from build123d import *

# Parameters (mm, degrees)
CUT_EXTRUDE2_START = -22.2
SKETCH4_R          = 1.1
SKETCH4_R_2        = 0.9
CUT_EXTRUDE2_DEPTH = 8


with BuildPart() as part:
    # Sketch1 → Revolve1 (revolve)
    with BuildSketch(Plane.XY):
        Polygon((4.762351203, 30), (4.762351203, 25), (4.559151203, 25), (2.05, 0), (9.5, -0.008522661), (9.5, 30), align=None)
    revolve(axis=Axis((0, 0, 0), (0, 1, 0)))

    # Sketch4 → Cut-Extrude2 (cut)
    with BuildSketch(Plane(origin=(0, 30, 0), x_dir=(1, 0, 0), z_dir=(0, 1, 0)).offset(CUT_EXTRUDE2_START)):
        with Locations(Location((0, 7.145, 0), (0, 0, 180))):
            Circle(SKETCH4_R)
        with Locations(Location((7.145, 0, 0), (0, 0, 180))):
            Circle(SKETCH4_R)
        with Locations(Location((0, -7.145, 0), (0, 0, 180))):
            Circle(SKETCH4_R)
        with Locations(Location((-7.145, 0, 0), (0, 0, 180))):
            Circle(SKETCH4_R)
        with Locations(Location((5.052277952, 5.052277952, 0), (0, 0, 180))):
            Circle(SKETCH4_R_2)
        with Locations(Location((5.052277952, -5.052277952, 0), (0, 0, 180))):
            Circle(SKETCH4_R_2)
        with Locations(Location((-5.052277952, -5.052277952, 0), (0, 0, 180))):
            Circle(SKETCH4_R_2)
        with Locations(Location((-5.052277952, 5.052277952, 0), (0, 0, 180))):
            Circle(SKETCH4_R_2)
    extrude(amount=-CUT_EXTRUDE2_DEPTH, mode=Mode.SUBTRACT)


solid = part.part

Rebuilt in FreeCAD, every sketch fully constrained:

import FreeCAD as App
import Part
import Sketcher
from FreeCAD import Vector


def add_polygon(sketch, points):
    """Adds a closed chain of lines whose ends are joined by coincident constraints."""
    first, n = sketch.GeometryCount, len(points)
    for a, b in zip(points, points[1:] + points[:1]):
        sketch.addGeometry(Part.LineSegment(App.Vector(*a, 0), App.Vector(*b, 0)), False)
    for i in range(n):
        sketch.addConstraint(Sketcher.Constraint("Coincident", first + i, 2, first + (i + 1) % n, 1))

doc = App.newDocument("Part")
body = doc.addObject("PartDesign::Body", "Body")

# Sketch on XY plane
sketch1 = doc.addObject("Sketcher::SketchObject", "Sketch")
body.addObject(sketch1)
sketch1.AttachmentSupport = (doc.XY_Plane, [""])
sketch1.MapMode = "FlatFace"
add_polygon(sketch1, [(4.762351, 30), (4.762351, 25), (4.559151, 25), (2.05, 0), (9.5, -0.008523), (9.5, 30)])  # lines 0-5
sketch1.addConstraint([
    Sketcher.Constraint("Vertical", 0),
    Sketcher.Constraint("Horizontal", 1),
    Sketcher.Constraint("Vertical", 4),
    Sketcher.Constraint("Horizontal", 5),
    Sketcher.Constraint("PointOnObject", 2, 2, -1),
    Sketcher.Constraint("DistanceY", 0, 2, 0, 1, 5.0),
    Sketcher.Constraint("DistanceY", -1, 1, 0, 2, 25.0),
    Sketcher.Constraint("DistanceX", -1, 1, 3, 2, 9.5),
    Sketcher.Constraint("DistanceX", -1, 1, 2, 2, 2.05),
    Sketcher.Constraint("DistanceX", 1, 2, 1, 1, 0.2032),
    Sketcher.Constraint("Distance", 2, 25.125601),
    Sketcher.Constraint("DistanceY", 4, 1, 4, 2, 30.008523),
])
revolution = doc.addObject("PartDesign::Revolution", "Revolution")
body.addObject(revolution)
revolution.Profile = sketch1
revolution.ReferenceAxis = (sketch1, ["V_Axis"])
revolution.Angle = 360

# Sketch on XZ plane
sketch2 = doc.addObject("Sketcher::SketchObject", "Sketch001")
body.addObject(sketch2)
sketch2.AttachmentSupport = (doc.XZ_Plane, [""])
sketch2.MapMode = "FlatFace"
sketch2.AttachmentOffset = App.Placement(Vector(0, 0, -7.8), App.Rotation())
sketch2.addGeometry([
    Part.Circle(Vector(0, -7.145, 0), Vector(0, 0, 1), 1.1),  # 0
    Part.Circle(Vector(7.145, 0, 0), Vector(0, 0, 1), 1.1),  # 1
    Part.Circle(Vector(0, 7.145, 0), Vector(0, 0, 1), 1.1),  # 2
    Part.Circle(Vector(-7.145, 0, 0), Vector(0, 0, 1), 1.1),  # 3
    Part.Circle(Vector(5.052278, -5.052278, 0), Vector(0, 0, 1), 0.9),  # 4
    Part.Circle(Vector(5.052278, 5.052278, 0), Vector(0, 0, 1), 0.9),  # 5
    Part.Circle(Vector(-5.052278, 5.052278, 0), Vector(0, 0, 1), 0.9),  # 6
    Part.Circle(Vector(-5.052278, -5.052278, 0), Vector(0, 0, 1), 0.9),  # 7
], False)
sketch2.addConstraint([
    Sketcher.Constraint("Equal", 0, 1),
    Sketcher.Constraint("Equal", 1, 2),
    Sketcher.Constraint("Equal", 2, 3),
    Sketcher.Constraint("Equal", 4, 5),
    Sketcher.Constraint("Equal", 5, 6),
    Sketcher.Constraint("Equal", 6, 7),
    Sketcher.Constraint("Symmetric", 0, 3, 2, 3, -1, 1),
    Sketcher.Constraint("Symmetric", 1, 3, 3, 3, -1, 1),
    Sketcher.Constraint("Symmetric", 4, 3, 6, 3, -1, 1),
    Sketcher.Constraint("Symmetric", 5, 3, 7, 3, -1, 1),
    Sketcher.Constraint("Symmetric", 5, 3, 6, 3, -2),
    Sketcher.Constraint("PointOnObject", 0, 3, -2),
    Sketcher.Constraint("PointOnObject", 1, 3, -1),
    Sketcher.Constraint("Diameter", 0, 2.2),
    Sketcher.Constraint("Diameter", 4, 1.8),
    Sketcher.Constraint("DistanceY", 0, 3, 2, 3, 14.29),
    Sketcher.Constraint("DistanceX", 3, 3, 1, 3, 14.29),
    Sketcher.Constraint("DistanceX", -1, 1, 4, 3, 5.052278),
    Sketcher.Constraint("DistanceY", 4, 3, -1, 1, 5.052278),
])
pocket1 = doc.addObject("PartDesign::Pocket", "Pocket")
body.addObject(pocket1)
pocket1.Profile = sketch2
pocket1.Length = 8
pocket1.Reversed = True

doc.recompute()
